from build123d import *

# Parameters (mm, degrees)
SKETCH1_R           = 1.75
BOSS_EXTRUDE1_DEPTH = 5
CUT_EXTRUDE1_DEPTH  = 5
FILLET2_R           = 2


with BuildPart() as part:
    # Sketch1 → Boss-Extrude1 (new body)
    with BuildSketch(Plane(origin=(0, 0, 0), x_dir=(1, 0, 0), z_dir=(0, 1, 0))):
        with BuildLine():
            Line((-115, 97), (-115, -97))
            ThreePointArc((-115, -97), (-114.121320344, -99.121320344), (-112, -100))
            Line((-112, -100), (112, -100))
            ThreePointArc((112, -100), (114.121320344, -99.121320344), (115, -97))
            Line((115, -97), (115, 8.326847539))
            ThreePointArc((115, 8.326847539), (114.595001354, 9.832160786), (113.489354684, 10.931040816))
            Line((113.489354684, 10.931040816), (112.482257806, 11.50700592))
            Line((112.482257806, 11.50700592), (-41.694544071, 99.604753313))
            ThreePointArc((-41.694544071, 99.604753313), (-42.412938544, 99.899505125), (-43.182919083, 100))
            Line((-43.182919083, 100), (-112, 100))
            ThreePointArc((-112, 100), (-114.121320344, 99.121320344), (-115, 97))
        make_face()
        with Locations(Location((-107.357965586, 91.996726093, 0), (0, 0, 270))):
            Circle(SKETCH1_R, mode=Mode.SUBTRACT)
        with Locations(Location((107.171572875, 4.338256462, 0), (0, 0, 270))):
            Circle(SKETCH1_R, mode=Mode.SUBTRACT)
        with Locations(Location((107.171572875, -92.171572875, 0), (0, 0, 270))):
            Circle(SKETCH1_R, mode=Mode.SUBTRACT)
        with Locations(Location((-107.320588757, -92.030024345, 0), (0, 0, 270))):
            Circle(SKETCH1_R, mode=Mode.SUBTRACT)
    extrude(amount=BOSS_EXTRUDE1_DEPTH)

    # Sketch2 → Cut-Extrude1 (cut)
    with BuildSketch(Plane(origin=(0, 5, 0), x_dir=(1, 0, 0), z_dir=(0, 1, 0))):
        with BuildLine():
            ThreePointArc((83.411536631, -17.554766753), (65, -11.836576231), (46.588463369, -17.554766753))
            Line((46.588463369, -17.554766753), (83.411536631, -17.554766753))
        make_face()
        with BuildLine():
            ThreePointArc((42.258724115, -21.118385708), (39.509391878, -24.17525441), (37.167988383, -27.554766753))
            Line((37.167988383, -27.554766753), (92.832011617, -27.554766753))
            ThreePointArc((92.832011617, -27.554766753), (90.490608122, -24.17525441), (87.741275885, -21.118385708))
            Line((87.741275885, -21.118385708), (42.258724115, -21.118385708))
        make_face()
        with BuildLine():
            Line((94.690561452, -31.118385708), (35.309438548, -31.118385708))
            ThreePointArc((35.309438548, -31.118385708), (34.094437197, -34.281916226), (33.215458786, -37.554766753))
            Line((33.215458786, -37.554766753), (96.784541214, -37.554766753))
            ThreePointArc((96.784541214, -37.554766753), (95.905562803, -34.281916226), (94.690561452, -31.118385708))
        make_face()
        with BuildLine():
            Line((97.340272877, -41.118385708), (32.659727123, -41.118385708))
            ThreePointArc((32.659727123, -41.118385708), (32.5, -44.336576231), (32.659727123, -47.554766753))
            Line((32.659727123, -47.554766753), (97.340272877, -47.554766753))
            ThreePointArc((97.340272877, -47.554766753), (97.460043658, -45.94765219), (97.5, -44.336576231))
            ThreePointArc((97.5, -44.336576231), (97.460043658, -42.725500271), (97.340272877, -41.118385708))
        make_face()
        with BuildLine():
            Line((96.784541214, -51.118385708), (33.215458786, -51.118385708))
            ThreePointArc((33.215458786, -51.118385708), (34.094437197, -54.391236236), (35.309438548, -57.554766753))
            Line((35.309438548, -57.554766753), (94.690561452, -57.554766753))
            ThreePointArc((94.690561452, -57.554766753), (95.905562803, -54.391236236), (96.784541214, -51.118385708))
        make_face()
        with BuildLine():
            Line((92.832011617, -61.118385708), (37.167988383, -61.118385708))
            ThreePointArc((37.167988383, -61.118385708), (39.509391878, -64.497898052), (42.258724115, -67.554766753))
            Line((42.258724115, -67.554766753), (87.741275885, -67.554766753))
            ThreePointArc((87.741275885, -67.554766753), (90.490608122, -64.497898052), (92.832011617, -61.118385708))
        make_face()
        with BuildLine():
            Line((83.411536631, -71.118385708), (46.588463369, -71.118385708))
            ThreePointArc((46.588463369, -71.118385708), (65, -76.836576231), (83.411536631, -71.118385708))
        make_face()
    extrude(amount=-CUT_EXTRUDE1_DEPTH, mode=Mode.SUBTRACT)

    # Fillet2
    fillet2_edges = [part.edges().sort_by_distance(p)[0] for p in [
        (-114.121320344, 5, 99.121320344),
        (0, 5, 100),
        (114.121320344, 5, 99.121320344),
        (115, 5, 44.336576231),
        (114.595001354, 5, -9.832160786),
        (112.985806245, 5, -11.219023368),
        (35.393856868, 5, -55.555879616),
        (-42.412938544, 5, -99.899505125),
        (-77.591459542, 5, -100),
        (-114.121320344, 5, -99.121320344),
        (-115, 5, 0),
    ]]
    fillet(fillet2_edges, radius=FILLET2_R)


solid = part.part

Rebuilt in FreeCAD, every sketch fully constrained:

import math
import FreeCAD as App
import Part
import Sketcher

V = App.Vector
Q = App.Units.Quantity


def edges_at(feature, points):
    """Names of the edges that pass closest to the given points."""
    edges = feature.Shape.Edges
    near = lambda p: min(range(len(edges)), key=lambda i: edges[i].distToShape(Part.Vertex(*p))[0])
    return sorted({f"Edge{near(p) + 1}" for p in points})

doc = App.newDocument("Part")
body = doc.addObject("PartDesign::Body", "Body")

# Sketch on XZ plane
sketch1 = doc.addObject("Sketcher::SketchObject", "Sketch")
body.addObject(sketch1)
sketch1.AttachmentSupport = (doc.XZ_Plane, [""])
sketch1.MapMode = "FlatFace"
sketch1.addGeometry([
    Part.LineSegment(V(-115, -97, 0), V(-115, 97, 0)),  # 0
    Part.ArcOfCircle(Part.Circle(V(-112, 97, 0), V(0, 0, 1), 3), math.radians(90), math.radians(180)),  # 1
    Part.LineSegment(V(-112, 100, 0), V(112, 100, 0)),  # 2
    Part.ArcOfCircle(Part.Circle(V(112, 97, 0), V(0, 0, 1), 3), math.radians(0), math.radians(90)),  # 3
    Part.LineSegment(V(115, 97, 0), V(115, -8.3, 0)),  # 4
    Part.ArcOfCircle(Part.Circle(V(112, -8.3, 0), V(0, 0, 1), 3), math.radians(-60), math.radians(0)),  # 5
    Part.LineSegment(V(113.5, -10.9, 0), V(112.5, -11.5, 0)),  # 6
    Part.LineSegment(V(112.5, -11.5, 0), V(-41.7, -99.6, 0)),  # 7
    Part.ArcOfCircle(Part.Circle(V(-43.2, -97, 0), V(0, 0, 1), 3), math.radians(-90), math.radians(-60)),  # 8
    Part.LineSegment(V(-43.2, -100, 0), V(-112, -100, 0)),  # 9
    Part.ArcOfCircle(Part.Circle(V(-112, -97, 0), V(0, 0, 1), 3), math.radians(180), math.radians(270)),  # 10
    Part.Circle(V(-107.3, 92, 0), V(0, 0, 1), 1.8),  # 11
    Part.Circle(V(107.2, 92.2, 0), V(0, 0, 1), 1.8),  # 12
    Part.Circle(V(-107.4, -92, 0), V(0, 0, 1), 1.8),  # 13
    Part.Circle(V(107.2, -4.3, 0), V(0, 0, 1), 1.8),  # 14
], False)
sketch1.addConstraint([
    Sketcher.Constraint("Tangent", 0, 2, 1, 2),
    Sketcher.Constraint("Tangent", 1, 1, 2, 1),
    Sketcher.Constraint("Tangent", 2, 2, 3, 2),
    Sketcher.Constraint("Tangent", 3, 1, 4, 1),
    Sketcher.Constraint("Tangent", 4, 2, 5, 2),
    Sketcher.Constraint("Tangent", 5, 1, 6, 1),
    Sketcher.Constraint("Coincident", 6, 2, 7, 1),
    Sketcher.Constraint("Tangent", 7, 2, 8, 2),
    Sketcher.Constraint("Tangent", 8, 1, 9, 1),
    Sketcher.Constraint("Tangent", 9, 2, 10, 2),
    Sketcher.Constraint("Tangent", 10, 1, 0, 1),
    Sketcher.Constraint("Vertical", 0),
    Sketcher.Constraint("Horizontal", 2),
    Sketcher.Constraint("Vertical", 4),
    Sketcher.Constraint("Horizontal", 9),
    Sketcher.Constraint("Equal", 1, 3),
    Sketcher.Constraint("Equal", 3, 5),
    Sketcher.Constraint("Equal", 5, 8),
    Sketcher.Constraint("Equal", 8, 10),
    Sketcher.Constraint("Equal", 11, 12),
    Sketcher.Constraint("Equal", 12, 13),
    Sketcher.Constraint("Equal", 13, 14),
    Sketcher.Constraint("Symmetric", 3, 3, 10, 3, -1, 1),
    Sketcher.Constraint("Vertical", 12, 3, 14, 3),
    Sketcher.Constraint("Radius", 1, Q("3 mm")),
    Sketcher.Constraint("Diameter", 11, Q("3.5 mm")),
    Sketcher.Constraint("DistanceX", 2, 1, 2, 2, Q("224 mm")),
    Sketcher.Constraint("DistanceY", 0, 1, 0, 2, Q("194 mm")),
    Sketcher.Constraint("DistanceX", 9, 2, 9, 1, Q("68.817081 mm")),
    Sketcher.Constraint("DistanceX", 7, 2, 6, 2, Q("154.176802 mm")),
    Sketcher.Constraint("DistanceY", 4, 2, 4, 1, Q("105.326848 mm")),
    Sketcher.Constraint("DistanceX", 11, 3, -1, 1, Q("107.320589 mm")),
    Sketcher.Constraint("DistanceY", 5, 1, -1, 1, Q("10.931041 mm")),
    Sketcher.Constraint("DistanceY", 5, 3, 11, 3, Q("100.356872 mm")),
    Sketcher.Constraint("DistanceY", 5, 3, 12, 3, Q("100.49842 mm")),
    Sketcher.Constraint("DistanceX", 11, 3, 12, 3, Q("214.492162 mm")),
    Sketcher.Constraint("DistanceY", 13, 3, 11, 3, Q("184.02675 mm")),
    Sketcher.Constraint("DistanceY", 5, 3, 14, 3, Q("3.988591 mm")),
    Sketcher.Constraint("DistanceX", 13, 3, 14, 3, Q("214.529538 mm")),
])
pad1 = doc.addObject("PartDesign::Pad", "Pad")
body.addObject(pad1)
pad1.Profile = sketch1
pad1.Length = 5
pad1.Reversed = True

# Sketch on XZ plane
sketch2 = doc.addObject("Sketcher::SketchObject", "Sketch001")
body.addObject(sketch2)
sketch2.AttachmentSupport = (doc.XZ_Plane, [""])
sketch2.MapMode = "FlatFace"
sketch2.AttachmentOffset = App.Placement(V(0, 0, -5), App.Rotation())
sketch2.addGeometry([
    Part.ArcOfCircle(Part.Circle(V(65, 44.3, 0), V(0, 0, 1), 32.5), math.radians(-125), math.radians(-55)),  # 0
    Part.LineSegment(V(46.6, 17.6, 0), V(83.4, 17.6, 0)),  # 1
    Part.ArcOfCircle(Part.Circle(V(65, 44.3, 0), V(0, 0, 1), 32.5), math.radians(-148.91), math.radians(-134.41)),  # 2
    Part.LineSegment(V(37.2, 27.6, 0), V(92.8, 27.6, 0)),  # 3
    Part.ArcOfCircle(Part.Circle(V(65, 44.3, 0), V(0, 0, 1), 32.5), math.radians(-45.59), math.radians(-31.09)),  # 4
    Part.LineSegment(V(87.7, 21.1, 0), V(42.3, 21.1, 0)),  # 5
    Part.LineSegment(V(94.7, 31.1, 0), V(35.3, 31.1, 0)),  # 6
    Part.ArcOfCircle(Part.Circle(V(65, 44.3, 0), V(0, 0, 1), 32.5), math.radians(-167.96), math.radians(-156)),  # 7
    Part.LineSegment(V(33.2, 37.6, 0), V(96.8, 37.6, 0)),  # 8
    Part.ArcOfCircle(Part.Circle(V(65, 44.3, 0), V(0, 0, 1), 32.5), math.radians(-24), math.radians(-12.04)),  # 9
    Part.LineSegment(V(97.3, 41.1, 0), V(32.7, 41.1, 0)),  # 10
    Part.ArcOfCircle(Part.Circle(V(65, 44.3, 0), V(0, 0, 1), 32.5), math.radians(174.32), math.radians(185.68)),  # 11
    Part.LineSegment(V(32.7, 47.6, 0), V(97.3, 47.6, 0)),  # 12
    Part.ArcOfCircle(Part.Circle(V(65, 44.3, 0), V(0, 0, 1), 32.5), math.radians(0), math.radians(5.68)),  # 13
    Part.ArcOfCircle(Part.Circle(V(65, 44.3, 0), V(0, 0, 1), 32.5), math.radians(-5.68), math.radians(0)),  # 14
    Part.LineSegment(V(96.8, 51.1, 0), V(33.2, 51.1, 0)),  # 15
    Part.ArcOfCircle(Part.Circle(V(65, 44.3, 0), V(0, 0, 1), 32.5), math.radians(156), math.radians(167.96)),  # 16
    Part.LineSegment(V(35.3, 57.6, 0), V(94.7, 57.6, 0)),  # 17
    Part.ArcOfCircle(Part.Circle(V(65, 44.3, 0), V(0, 0, 1), 32.5), math.radians(12.04), math.radians(24)),  # 18
    Part.LineSegment(V(92.8, 61.1, 0), V(37.2, 61.1, 0)),  # 19
    Part.ArcOfCircle(Part.Circle(V(65, 44.3, 0), V(0, 0, 1), 32.5), math.radians(134.41), math.radians(148.91)),  # 20
    Part.LineSegment(V(42.3, 67.6, 0), V(87.7, 67.6, 0)),  # 21
    Part.ArcOfCircle(Part.Circle(V(65, 44.3, 0), V(0, 0, 1), 32.5), math.radians(31.09), math.radians(45.59)),  # 22
    Part.LineSegment(V(83.4, 71.1, 0), V(46.6, 71.1, 0)),  # 23
    Part.ArcOfCircle(Part.Circle(V(65, 44.3, 0), V(0, 0, 1), 32.5), math.radians(55), math.radians(125)),  # 24
], False)
sketch2.addConstraint([
    Sketcher.Constraint("Coincident", 0, 1, 1, 1),
    Sketcher.Constraint("Coincident", 1, 2, 0, 2),
    Sketcher.Constraint("Coincident", 2, 1, 3, 1),
    Sketcher.Constraint("Coincident", 3, 2, 4, 2),
    Sketcher.Constraint("Coincident", 4, 1, 5, 1),
    Sketcher.Constraint("Coincident", 5, 2, 2, 2),
    Sketcher.Constraint("Coincident", 6, 2, 7, 2),
    Sketcher.Constraint("Coincident", 7, 1, 8, 1),
    Sketcher.Constraint("Coincident", 8, 2, 9, 2),
    Sketcher.Constraint("Coincident", 9, 1, 6, 1),
    Sketcher.Constraint("Coincident", 10, 2, 11, 2),
    Sketcher.Constraint("Coincident", 11, 1, 12, 1),
    Sketcher.Constraint("Coincident", 12, 2, 13, 2),
    Sketcher.Constraint("Tangent", 13, 1, 14, 2),
    Sketcher.Constraint("Coincident", 14, 1, 10, 1),
    Sketcher.Constraint("Coincident", 15, 2, 16, 2),
    Sketcher.Constraint("Coincident", 16, 1, 17, 1),
    Sketcher.Constraint("Coincident", 17, 2, 18, 2),
    Sketcher.Constraint("Coincident", 18, 1, 15, 1),
    Sketcher.Constraint("Coincident", 19, 2, 20, 2),
    Sketcher.Constraint("Coincident", 20, 1, 21, 1),
    Sketcher.Constraint("Coincident", 21, 2, 22, 2),
    Sketcher.Constraint("Coincident", 22, 1, 19, 1),
    Sketcher.Constraint("Coincident", 23, 1, 24, 1),
    Sketcher.Constraint("Coincident", 24, 2, 23, 2),
    Sketcher.Constraint("Horizontal", 1),
    Sketcher.Constraint("Horizontal", 3),
    Sketcher.Constraint("Horizontal", 5),
    Sketcher.Constraint("Horizontal", 6),
    Sketcher.Constraint("Horizontal", 8),
    Sketcher.Constraint("Horizontal", 10),
    Sketcher.Constraint("Horizontal", 12),
    Sketcher.Constraint("Horizontal", 15),
    Sketcher.Constraint("Horizontal", 17),
    Sketcher.Constraint("Horizontal", 19),
    Sketcher.Constraint("Horizontal", 21),
    Sketcher.Constraint("Horizontal", 23),
    Sketcher.Constraint("Coincident", 2, 3, 0, 3),
    Sketcher.Constraint("Coincident", 4, 3, 0, 3),
    Sketcher.Constraint("Coincident", 7, 3, 0, 3),
    Sketcher.Constraint("Coincident", 9, 3, 0, 3),
    Sketcher.Constraint("Coincident", 11, 3, 0, 3),
    Sketcher.Constraint("Coincident", 13, 3, 0, 3),
    Sketcher.Constraint("Coincident", 16, 3, 0, 3),
    Sketcher.Constraint("Coincident", 18, 3, 0, 3),
    Sketcher.Constraint("Coincident", 20, 3, 0, 3),
    Sketcher.Constraint("Coincident", 22, 3, 0, 3),
    Sketcher.Constraint("Coincident", 24, 3, 0, 3),
    Sketcher.Constraint("Equal", 0, 2),
    Sketcher.Constraint("Equal", 2, 4),
    Sketcher.Constraint("Equal", 4, 7),
    Sketcher.Constraint("Equal", 7, 9),
    Sketcher.Constraint("Equal", 9, 11),
    Sketcher.Constraint("Equal", 11, 13),
    Sketcher.Constraint("Equal", 13, 14),
    Sketcher.Constraint("Equal", 14, 16),
    Sketcher.Constraint("Equal", 16, 18),
    Sketcher.Constraint("Equal", 18, 20),
    Sketcher.Constraint("Equal", 20, 22),
    Sketcher.Constraint("Equal", 22, 24),
    Sketcher.Constraint("Horizontal", 24, 3, 13, 1),
    Sketcher.Constraint("Vertical", 10, 2, 11, 1),
    Sketcher.Constraint("Vertical", 7, 1, 15, 2),
    Sketcher.Constraint("Vertical", 6, 2, 16, 1),
    Sketcher.Constraint("Vertical", 2, 1, 19, 2),
    Sketcher.Constraint("Vertical", 5, 2, 20, 1),
    Sketcher.Constraint("Vertical", 1, 2, 23, 1),
    Sketcher.Constraint("Radius", 0, Q("32.5 mm")),
    Sketcher.Constraint("DistanceX", -1, 1, 0, 3, Q("65 mm")),
    Sketcher.Constraint("DistanceY", 0, 1, 2, 1, Q("10 mm")),
    Sketcher.Constraint("DistanceY", 5, 2, 6, 2, Q("10 mm")),
    Sketcher.Constraint("DistanceY", 2, 1, 7, 1, Q("10 mm")),
    Sketcher.Constraint("DistanceY", 6, 2, 10, 2, Q("10 mm")),
    Sketcher.Constraint("DistanceY", 7, 1, 11, 1, Q("10 mm")),
    Sketcher.Constraint("DistanceX", 5, 2, 5, 1, Q("45.482552 mm")),
    Sketcher.Constraint("DistanceY", -1, 1, 0, 3, Q("44.336576 mm")),
])
pocket1 = doc.addObject("PartDesign::Pocket", "Pocket")
body.addObject(pocket1)
pocket1.Profile = sketch2
pocket1.Length = 5
pocket1.Reversed = True
doc.recompute()

fillet = doc.addObject("PartDesign::Fillet", "Fillet")
body.addObject(fillet)
fillet.Base = (pocket1, edges_at(pocket1, [
    (-114.121, 5, 99.121),
    (0, 5, 100),
    (114.121, 5, 99.121),
    (115, 5, 44.337),
    (114.595, 5, -9.832),
    (112.986, 5, -11.219),
    (35.394, 5, -55.556),
    (-42.413, 5, -99.9),
    (-77.591, 5, -100),
    (-114.121, 5, -99.121),
    (-115, 5, 0),
]))
fillet.Radius = 2

doc.recompute()
